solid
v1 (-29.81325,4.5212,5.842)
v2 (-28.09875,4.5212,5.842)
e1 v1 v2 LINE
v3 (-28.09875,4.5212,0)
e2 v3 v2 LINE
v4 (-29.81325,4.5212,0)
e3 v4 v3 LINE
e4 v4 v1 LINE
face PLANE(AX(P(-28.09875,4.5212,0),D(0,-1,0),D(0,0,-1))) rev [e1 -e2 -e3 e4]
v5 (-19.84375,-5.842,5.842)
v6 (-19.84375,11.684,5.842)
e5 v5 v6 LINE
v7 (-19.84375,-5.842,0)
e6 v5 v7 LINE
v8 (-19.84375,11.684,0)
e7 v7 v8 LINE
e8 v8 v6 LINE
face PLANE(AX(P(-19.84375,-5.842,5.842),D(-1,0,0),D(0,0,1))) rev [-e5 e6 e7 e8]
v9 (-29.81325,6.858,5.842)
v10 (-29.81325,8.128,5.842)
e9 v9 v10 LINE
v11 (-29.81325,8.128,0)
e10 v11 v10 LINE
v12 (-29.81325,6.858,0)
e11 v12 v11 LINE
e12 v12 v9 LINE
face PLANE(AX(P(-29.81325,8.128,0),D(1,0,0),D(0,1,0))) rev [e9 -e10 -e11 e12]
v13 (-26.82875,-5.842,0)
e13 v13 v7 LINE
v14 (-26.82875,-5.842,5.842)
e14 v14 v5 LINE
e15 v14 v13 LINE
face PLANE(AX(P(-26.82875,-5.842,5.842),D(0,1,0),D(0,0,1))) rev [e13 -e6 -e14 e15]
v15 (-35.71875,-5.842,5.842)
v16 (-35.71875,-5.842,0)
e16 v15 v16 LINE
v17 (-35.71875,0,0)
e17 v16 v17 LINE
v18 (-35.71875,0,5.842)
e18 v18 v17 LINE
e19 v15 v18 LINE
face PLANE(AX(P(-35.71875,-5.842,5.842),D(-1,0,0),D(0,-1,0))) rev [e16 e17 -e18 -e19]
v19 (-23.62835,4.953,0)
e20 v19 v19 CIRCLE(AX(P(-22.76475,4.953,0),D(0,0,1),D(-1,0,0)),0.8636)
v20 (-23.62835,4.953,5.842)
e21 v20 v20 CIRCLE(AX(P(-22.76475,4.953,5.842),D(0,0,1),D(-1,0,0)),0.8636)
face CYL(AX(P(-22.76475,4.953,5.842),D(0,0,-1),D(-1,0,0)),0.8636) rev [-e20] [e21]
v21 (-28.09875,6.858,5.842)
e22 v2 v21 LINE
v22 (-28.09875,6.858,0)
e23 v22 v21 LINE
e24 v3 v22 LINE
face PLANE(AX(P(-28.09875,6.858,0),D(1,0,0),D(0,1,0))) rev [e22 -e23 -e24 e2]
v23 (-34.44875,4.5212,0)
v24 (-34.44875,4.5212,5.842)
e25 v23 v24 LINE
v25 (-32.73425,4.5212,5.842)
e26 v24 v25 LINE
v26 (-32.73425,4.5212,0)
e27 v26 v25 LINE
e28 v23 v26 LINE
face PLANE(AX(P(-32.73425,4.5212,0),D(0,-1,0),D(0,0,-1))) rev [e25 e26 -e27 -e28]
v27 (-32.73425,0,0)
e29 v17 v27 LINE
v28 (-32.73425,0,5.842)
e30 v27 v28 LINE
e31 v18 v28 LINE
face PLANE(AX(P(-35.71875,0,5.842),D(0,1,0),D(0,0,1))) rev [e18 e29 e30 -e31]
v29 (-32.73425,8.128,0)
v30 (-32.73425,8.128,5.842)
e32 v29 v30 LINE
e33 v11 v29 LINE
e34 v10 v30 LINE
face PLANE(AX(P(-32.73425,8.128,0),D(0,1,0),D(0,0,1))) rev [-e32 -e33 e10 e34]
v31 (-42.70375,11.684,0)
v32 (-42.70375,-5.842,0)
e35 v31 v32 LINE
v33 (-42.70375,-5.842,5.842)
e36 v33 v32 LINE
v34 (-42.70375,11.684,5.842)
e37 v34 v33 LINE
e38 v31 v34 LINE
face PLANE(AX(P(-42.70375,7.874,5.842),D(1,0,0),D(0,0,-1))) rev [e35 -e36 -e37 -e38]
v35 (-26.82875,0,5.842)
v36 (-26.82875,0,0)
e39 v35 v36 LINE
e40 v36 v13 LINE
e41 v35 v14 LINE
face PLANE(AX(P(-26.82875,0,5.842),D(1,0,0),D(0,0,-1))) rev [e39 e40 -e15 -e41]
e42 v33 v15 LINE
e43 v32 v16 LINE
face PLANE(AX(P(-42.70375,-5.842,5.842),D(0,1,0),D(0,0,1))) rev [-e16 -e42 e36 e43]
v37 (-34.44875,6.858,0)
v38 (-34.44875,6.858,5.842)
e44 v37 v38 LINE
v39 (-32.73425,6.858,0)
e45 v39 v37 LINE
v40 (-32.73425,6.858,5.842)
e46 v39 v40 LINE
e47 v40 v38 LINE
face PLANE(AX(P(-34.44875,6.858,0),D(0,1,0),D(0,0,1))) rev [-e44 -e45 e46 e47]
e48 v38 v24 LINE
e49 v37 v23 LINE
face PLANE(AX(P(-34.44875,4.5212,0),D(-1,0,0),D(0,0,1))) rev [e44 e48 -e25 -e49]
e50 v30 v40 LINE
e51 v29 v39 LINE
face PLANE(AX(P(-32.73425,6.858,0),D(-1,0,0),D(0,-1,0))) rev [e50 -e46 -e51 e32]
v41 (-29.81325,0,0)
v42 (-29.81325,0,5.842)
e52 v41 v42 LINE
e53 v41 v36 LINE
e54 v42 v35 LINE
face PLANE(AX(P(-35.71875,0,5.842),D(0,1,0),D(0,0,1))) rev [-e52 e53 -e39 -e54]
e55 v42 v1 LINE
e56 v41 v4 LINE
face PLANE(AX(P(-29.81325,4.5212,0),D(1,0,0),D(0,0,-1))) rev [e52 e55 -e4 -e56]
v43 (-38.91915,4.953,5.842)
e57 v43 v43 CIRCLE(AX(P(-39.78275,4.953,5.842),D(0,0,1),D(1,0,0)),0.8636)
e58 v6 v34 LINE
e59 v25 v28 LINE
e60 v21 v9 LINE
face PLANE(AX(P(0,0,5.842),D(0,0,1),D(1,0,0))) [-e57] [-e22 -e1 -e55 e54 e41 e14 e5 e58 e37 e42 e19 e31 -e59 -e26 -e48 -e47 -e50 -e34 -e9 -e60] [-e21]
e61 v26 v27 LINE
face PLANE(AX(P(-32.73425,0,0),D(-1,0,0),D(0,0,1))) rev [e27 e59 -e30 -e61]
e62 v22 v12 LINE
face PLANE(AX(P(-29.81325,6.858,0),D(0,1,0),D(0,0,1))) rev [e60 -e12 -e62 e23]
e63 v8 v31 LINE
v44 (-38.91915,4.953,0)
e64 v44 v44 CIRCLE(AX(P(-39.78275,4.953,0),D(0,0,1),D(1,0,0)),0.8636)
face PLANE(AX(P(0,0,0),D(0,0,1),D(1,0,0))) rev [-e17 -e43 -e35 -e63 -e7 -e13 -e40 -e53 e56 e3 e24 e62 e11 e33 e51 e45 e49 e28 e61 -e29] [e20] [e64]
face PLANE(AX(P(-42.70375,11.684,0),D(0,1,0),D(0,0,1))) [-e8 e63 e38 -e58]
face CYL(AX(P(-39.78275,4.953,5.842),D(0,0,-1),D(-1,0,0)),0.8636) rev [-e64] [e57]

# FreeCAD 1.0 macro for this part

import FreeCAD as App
import Part
import Sketcher
from FreeCAD import Vector
Q = App.Units.Quantity

doc = App.newDocument("Part")
body = doc.addObject("PartDesign::Body", "Body")

# Sketch on XY plane
sketch1 = doc.addObject("Sketcher::SketchObject", "Sketch")
body.addObject(sketch1)
sketch1.AttachmentSupport = (doc.XY_Plane, [""])
sketch1.MapMode = "FlatFace"
sketch1.addGeometry(Part.LineSegment(Vector(-42.7, -5.8, 0), Vector(-35.7, -5.8, 0)), False)
sketch1.addGeometry(Part.LineSegment(Vector(-35.7, -5.8, 0), Vector(-35.7, 0, 0)), False)
sketch1.addGeometry(Part.LineSegment(Vector(-35.7, 0, 0), Vector(-26.8, 0, 0)), False)
sketch1.addGeometry(Part.LineSegment(Vector(-26.8, 0, 0), Vector(-26.8, -5.8, 0)), False)
sketch1.addGeometry(Part.LineSegment(Vector(-26.8, -5.8, 0), Vector(-19.8, -5.8, 0)), False)
sketch1.addGeometry(Part.LineSegment(Vector(-19.8, -5.8, 0), Vector(-19.8, 7.9, 0)), False)
sketch1.addGeometry(Part.LineSegment(Vector(-19.8, 7.9, 0), Vector(-42.7, 7.9, 0)), False)
sketch1.addGeometry(Part.LineSegment(Vector(-42.7, 7.9, 0), Vector(-42.7, -5.8, 0)), False)
sketch1.addGeometry(Part.Circle(Vector(-39.8, 5, 0), Vector(0, 0, 1), 0.9), False)
sketch1.addGeometry(Part.Circle(Vector(-22.8, 5, 0), Vector(0, 0, 1), 0.9), False)
sketch1.addConstraint(Sketcher.Constraint("Coincident", 0, 2, 1, 1))
sketch1.addConstraint(Sketcher.Constraint("Coincident", 1, 2, 2, 1))
sketch1.addConstraint(Sketcher.Constraint("Coincident", 2, 2, 3, 1))
sketch1.addConstraint(Sketcher.Constraint("Coincident", 3, 2, 4, 1))
sketch1.addConstraint(Sketcher.Constraint("Coincident", 4, 2, 5, 1))
sketch1.addConstraint(Sketcher.Constraint("Coincident", 5, 2, 6, 1))
sketch1.addConstraint(Sketcher.Constraint("Coincident", 6, 2, 7, 1))
sketch1.addConstraint(Sketcher.Constraint("Coincident", 7, 2, 0, 1))
sketch1.addConstraint(Sketcher.Constraint("Horizontal", 0))
sketch1.addConstraint(Sketcher.Constraint("Vertical", 1))
sketch1.addConstraint(Sketcher.Constraint("Horizontal", 2))
sketch1.addConstraint(Sketcher.Constraint("Vertical", 3))
sketch1.addConstraint(Sketcher.Constraint("Horizontal", 4))
sketch1.addConstraint(Sketcher.Constraint("Vertical", 5))
sketch1.addConstraint(Sketcher.Constraint("Horizontal", 6))
sketch1.addConstraint(Sketcher.Constraint("Vertical", 7))
sketch1.addConstraint(Sketcher.Constraint("Equal", 8, 9))
sketch1.addConstraint(Sketcher.Constraint("PointOnObject", 1, 2, -1))
sketch1.addConstraint(Sketcher.Constraint("Horizontal", 8, 3, 9, 3))
sketch1.addConstraint(Sketcher.Constraint("Horizontal", 0, 2, 3, 2))
sketch1.addConstraint(Sketcher.Constraint("Equal", 0, 4))
sketch1.addConstraint(Sketcher.Constraint("Diameter", 8, Q("0.068 in")))
sketch1.addConstraint(Sketcher.Constraint("DistanceX", 6, 2, 6, 1, Q("0.9 in")))
sketch1.addConstraint(Sketcher.Constraint("DistanceX", 2, 1, 2, 2, Q("0.35 in")))
sketch1.addConstraint(Sketcher.Constraint("DistanceY", 1, 1, 1, 2, Q("0.23 in")))
sketch1.addConstraint(Sketcher.Constraint("DistanceY", 5, 1, 5, 2, Q("0.54 in")))
sketch1.addConstraint(Sketcher.Constraint("DistanceX", 8, 3, 9, 3, Q("0.67 in")))
sketch1.addConstraint(Sketcher.Constraint("DistanceX", 8, 3, 0, 2, Q("0.16 in")))
sketch1.addConstraint(Sketcher.Constraint("DistanceY", -1, 1, 8, 3, Q("0.195 in")))
sketch1.addConstraint(Sketcher.Constraint("DistanceX", 0, 2, -1, 1, Q("1.40625 in")))
pad1 = doc.addObject("PartDesign::Pad", "Pad")
body.addObject(pad1)
pad1.Profile = sketch1
pad1.Length = Q("0.23 in")

# Sketch on XY plane
sketch2 = doc.addObject("Sketcher::SketchObject", "Sketch001")
body.addObject(sketch2)
sketch2.AttachmentSupport = (doc.XY_Plane, [""])
sketch2.MapMode = "FlatFace"
sketch2.AttachmentOffset = App.Placement(Vector(0, 0, 0.23 * 25.4), App.Rotation())
sketch2.addGeometry(Part.LineSegment(Vector(-42.7, 11.7, 0), Vector(-42.7, 7.9, 0)), False)
sketch2.addGeometry(Part.LineSegment(Vector(-42.7, 7.9, 0), Vector(-19.8, 7.9, 0)), False)
sketch2.addGeometry(Part.LineSegment(Vector(-19.8, 7.9, 0), Vector(-19.8, 11.7, 0)), False)
sketch2.addGeometry(Part.LineSegment(Vector(-19.8, 11.7, 0), Vector(-42.7, 11.7, 0)), False)
sketch2.addConstraint(Sketcher.Constraint("Coincident", 0, 2, 1, 1))
sketch2.addConstraint(Sketcher.Constraint("Coincident", 1, 2, 2, 1))
sketch2.addConstraint(Sketcher.Constraint("Coincident", 2, 2, 3, 1))
sketch2.addConstraint(Sketcher.Constraint("Coincident", 3, 2, 0, 1))
sketch2.addConstraint(Sketcher.Constraint("Vertical", 0))
sketch2.addConstraint(Sketcher.Constraint("Horizontal", 1))
sketch2.addConstraint(Sketcher.Constraint("Vertical", 2))
sketch2.addConstraint(Sketcher.Constraint("Horizontal", 3))
sketch2.addConstraint(Sketcher.Constraint("DistanceX", 1, 1, 1, 2, Q("0.9 in")))
sketch2.addConstraint(Sketcher.Constraint("DistanceY", 0, 2, 0, 1, Q("0.15 in")))
sketch2.addConstraint(Sketcher.Constraint("DistanceY", -1, 1, 0, 2, Q("0.31 in")))
sketch2.addConstraint(Sketcher.Constraint("DistanceX", 1, 2, -1, 1, Q("0.78125 in")))
pad2 = doc.addObject("PartDesign::Pad", "Pad001")
body.addObject(pad2)
pad2.Profile = sketch2
pad2.Length = Q("0.23 in")
pad2.Reversed = True

# Sketch on XY plane
sketch3 = doc.addObject("Sketcher::SketchObject", "Sketch002")
body.addObject(sketch3)
sketch3.AttachmentSupport = (doc.XY_Plane, [""])
sketch3.MapMode = "FlatFace"
sketch3.AttachmentOffset = App.Placement(Vector(0, 0, 0.23 * 25.4), App.Rotation())
sketch3.addGeometry(Part.LineSegment(Vector(-32.7, 4.5, 0), Vector(-32.7, 0, 0)), False)
sketch3.addGeometry(Part.LineSegment(Vector(-32.7, 0, 0), Vector(-29.8, 0, 0)), False)
sketch3.addGeometry(Part.LineSegment(Vector(-29.8, 0, 0), Vector(-29.8, 4.5, 0)), False)
sketch3.addGeometry(Part.LineSegment(Vector(-29.8, 4.5, 0), Vector(-28.1, 4.5, 0)), False)
sketch3.addGeometry(Part.LineSegment(Vector(-28.1, 4.5, 0), Vector(-28.1, 6.9, 0)), False)
sketch3.addGeometry(Part.LineSegment(Vector(-28.1, 6.9, 0), Vector(-29.8, 6.9, 0)), False)
sketch3.addGeometry(Part.LineSegment(Vector(-29.8, 6.9, 0), Vector(-29.8, 8.1, 0)), False)
sketch3.addGeometry(Part.LineSegment(Vector(-29.8, 8.1, 0), Vector(-32.7, 8.1, 0)), False)
sketch3.addGeometry(Part.LineSegment(Vector(-32.7, 8.1, 0), Vector(-32.7, 6.9, 0)), False)
sketch3.addGeometry(Part.LineSegment(Vector(-32.7, 6.9, 0), Vector(-34.4, 6.9, 0)), False)
sketch3.addGeometry(Part.LineSegment(Vector(-34.4, 6.9, 0), Vector(-34.4, 4.5, 0)), False)
sketch3.addGeometry(Part.LineSegment(Vector(-34.4, 4.5, 0), Vector(-32.7, 4.5, 0)), False)
sketch3.addConstraint(Sketcher.Constraint("Coincident", 0, 2, 1, 1))
sketch3.addConstraint(Sketcher.Constraint("Coincident", 1, 2, 2, 1))
sketch3.addConstraint(Sketcher.Constraint("Coincident", 2, 2, 3, 1))
sketch3.addConstraint(Sketcher.Constraint("Coincident", 3, 2, 4, 1))
sketch3.addConstraint(Sketcher.Constraint("Coincident", 4, 2, 5, 1))
sketch3.addConstraint(Sketcher.Constraint("Coincident", 5, 2, 6, 1))
sketch3.addConstraint(Sketcher.Constraint("Coincident", 6, 2, 7, 1))
sketch3.addConstraint(Sketcher.Constraint("Coincident", 7, 2, 8, 1))
sketch3.addConstraint(Sketcher.Constraint("Coincident", 8, 2, 9, 1))
sketch3.addConstraint(Sketcher.Constraint("Coincident", 9, 2, 10, 1))
sketch3.addConstraint(Sketcher.Constraint("Coincident", 10, 2, 11, 1))
sketch3.addConstraint(Sketcher.Constraint("Coincident", 11, 2, 0, 1))
sketch3.addConstraint(Sketcher.Constraint("Vertical", 0))
sketch3.addConstraint(Sketcher.Constraint("Horizontal", 1))
sketch3.addConstraint(Sketcher.Constraint("Vertical", 2))
sketch3.addConstraint(Sketcher.Constraint("Horizontal", 3))
sketch3.addConstraint(Sketcher.Constraint("Vertical", 4))
sketch3.addConstraint(Sketcher.Constraint("Horizontal", 5))
sketch3.addConstraint(Sketcher.Constraint("Vertical", 6))
sketch3.addConstraint(Sketcher.Constraint("Horizontal", 7))
sketch3.addConstraint(Sketcher.Constraint("Vertical", 8))
sketch3.addConstraint(Sketcher.Constraint("Horizontal", 9))
sketch3.addConstraint(Sketcher.Constraint("Vertical", 10))
sketch3.addConstraint(Sketcher.Constraint("Horizontal", 11))
sketch3.addConstraint(Sketcher.Constraint("PointOnObject", 0, 2, -1))
sketch3.addConstraint(Sketcher.Constraint("Horizontal", 5, 2, 8, 2))
sketch3.addConstraint(Sketcher.Constraint("Horizontal", 3, 2, 10, 2))
sketch3.addConstraint(Sketcher.Constraint("Vertical", 2, 2, 5, 2))
sketch3.addConstraint(Sketcher.Constraint("Vertical", 0, 2, 7, 2))
sketch3.addConstraint(Sketcher.Constraint("Equal", 5, 9))
sketch3.addConstraint(Sketcher.Constraint("DistanceY", 6, 1, 6, 2, Q("0.05 in")))
sketch3.addConstraint(Sketcher.Constraint("DistanceX", 1, 1, 1, 2, Q("0.115 in")))
sketch3.addConstraint(Sketcher.Constraint("DistanceY", 0, 2, 0, 1, Q("0.178 in")))
sketch3.addConstraint(Sketcher.Constraint("DistanceY", 4, 1, 4, 2, Q("0.092 in")))
sketch3.addConstraint(Sketcher.Constraint("DistanceX", 3, 1, 3, 2, Q("0.0675 in")))
sketch3.addConstraint(Sketcher.Constraint("DistanceX", 0, 2, -1, 1, Q("32.73425 mm")))
pocket1 = doc.addObject("PartDesign::Pocket", "Pocket")
body.addObject(pocket1)
pocket1.Profile = sketch3
pocket1.Type = "ThroughAll"

doc.recompute()
